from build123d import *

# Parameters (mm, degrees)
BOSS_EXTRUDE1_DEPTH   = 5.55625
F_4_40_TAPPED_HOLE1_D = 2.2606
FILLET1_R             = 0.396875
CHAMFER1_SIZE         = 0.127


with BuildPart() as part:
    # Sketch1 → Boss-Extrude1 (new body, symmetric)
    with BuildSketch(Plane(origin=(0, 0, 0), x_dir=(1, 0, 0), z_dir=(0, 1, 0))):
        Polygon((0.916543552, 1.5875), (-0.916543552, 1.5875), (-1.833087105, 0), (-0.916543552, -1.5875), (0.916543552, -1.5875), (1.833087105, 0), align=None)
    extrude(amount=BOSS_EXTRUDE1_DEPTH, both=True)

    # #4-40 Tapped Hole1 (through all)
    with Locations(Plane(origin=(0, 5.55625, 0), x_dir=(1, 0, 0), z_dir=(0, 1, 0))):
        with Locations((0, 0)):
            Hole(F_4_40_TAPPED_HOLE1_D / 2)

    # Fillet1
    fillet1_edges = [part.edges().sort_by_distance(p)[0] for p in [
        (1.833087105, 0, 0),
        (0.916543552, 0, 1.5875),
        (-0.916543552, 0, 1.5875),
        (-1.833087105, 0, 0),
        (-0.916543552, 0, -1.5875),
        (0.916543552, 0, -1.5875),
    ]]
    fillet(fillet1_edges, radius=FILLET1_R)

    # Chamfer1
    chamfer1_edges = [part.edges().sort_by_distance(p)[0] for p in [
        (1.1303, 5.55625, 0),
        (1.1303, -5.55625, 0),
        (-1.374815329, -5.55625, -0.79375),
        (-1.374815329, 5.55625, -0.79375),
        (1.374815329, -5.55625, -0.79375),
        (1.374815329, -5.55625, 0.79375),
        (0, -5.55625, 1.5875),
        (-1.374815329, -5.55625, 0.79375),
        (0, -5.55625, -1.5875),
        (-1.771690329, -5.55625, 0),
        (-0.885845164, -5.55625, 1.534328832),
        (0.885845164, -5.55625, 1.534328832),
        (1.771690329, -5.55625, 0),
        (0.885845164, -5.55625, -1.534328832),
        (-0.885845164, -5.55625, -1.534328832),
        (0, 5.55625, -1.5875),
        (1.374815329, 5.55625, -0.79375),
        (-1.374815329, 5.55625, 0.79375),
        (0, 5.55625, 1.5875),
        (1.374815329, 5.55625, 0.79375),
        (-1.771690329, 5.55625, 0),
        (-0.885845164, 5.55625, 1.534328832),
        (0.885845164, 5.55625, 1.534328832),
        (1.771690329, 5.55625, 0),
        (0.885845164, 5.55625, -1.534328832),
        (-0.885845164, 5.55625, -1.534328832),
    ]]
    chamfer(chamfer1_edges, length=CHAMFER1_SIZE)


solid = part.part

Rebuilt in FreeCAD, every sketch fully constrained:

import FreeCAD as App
import Part
import Sketcher
from FreeCAD import Vector
Q = App.Units.Quantity


def edges_at(feature, points):
    """Names of the edges that pass closest to the given points."""
    edges = feature.Shape.Edges
    near = lambda p: min(range(len(edges)), key=lambda i: edges[i].distToShape(Part.Vertex(*p))[0])
    return sorted({f"Edge{near(p) + 1}" for p in points})

doc = App.newDocument("Part")
params = doc.addObject("Spreadsheet::Sheet", "Params")
for row, (alias, value) in enumerate([
    ("pad1_length", "0.4375 in"),
    ("sketch2_diameter", "0.089 in"),
    ("hole_diameter", "0.089 in"),
    ("fillet_radius", "0.015625 in"),
    ("chamfer_size", "0.005 in"),
], start=1):
    params.set(f"A{row}", alias)
    params.set(f"B{row}", "=" + value)
    params.setAlias(f"B{row}", alias)

body = doc.addObject("PartDesign::Body", "Body")

# Sketch on XZ plane
sketch1 = body.newObject("Sketcher::SketchObject", "Sketch")
sketch1.AttachmentSupport = (doc.getObject("XZ_Plane"), [""])
sketch1.MapMode = "FlatFace"
sketch1.addGeometry([
    Part.LineSegment(Vector(0.9, -1.6, 0), Vector(-0.9, -1.6, 0)),  # 0
    Part.LineSegment(Vector(-0.9, -1.6, 0), Vector(-1.8, 0, 0)),  # 1
    Part.LineSegment(Vector(-1.8, 0, 0), Vector(-0.9, 1.6, 0)),  # 2
    Part.LineSegment(Vector(-0.9, 1.6, 0), Vector(0.9, 1.6, 0)),  # 3
    Part.LineSegment(Vector(0.9, 1.6, 0), Vector(1.8, 0, 0)),  # 4
    Part.LineSegment(Vector(1.8, 0, 0), Vector(0.9, -1.6, 0)),  # 5
], False)
sketch1.addConstraint([
    Sketcher.Constraint("Coincident", 0, 2, 1, 1),
    Sketcher.Constraint("Coincident", 1, 2, 2, 1),
    Sketcher.Constraint("Coincident", 2, 2, 3, 1),
    Sketcher.Constraint("Coincident", 3, 2, 4, 1),
    Sketcher.Constraint("Coincident", 4, 2, 5, 1),
    Sketcher.Constraint("Coincident", 5, 2, 0, 1),
    Sketcher.Constraint("Horizontal", 0),
    Sketcher.Constraint("Horizontal", 3),
    Sketcher.Constraint("Symmetric", 0, 2, 3, 2, -1, 1),
    Sketcher.Constraint("Symmetric", 1, 2, 4, 2, -1, 1),
    Sketcher.Constraint("PointOnObject", 1, 2, -1),
    Sketcher.Constraint("Parallel", 2, 5),
    Sketcher.Constraint("Vertical", 0, 2, 2, 2),
    Sketcher.Constraint("Angle", 1, Q("120 deg")),
    Sketcher.Constraint("DistanceY", 0, 2, -1, 1, Q("0.0625 in")),
    Sketcher.Constraint("DistanceX", 0, 2, 0, 1, 1.833087),
])
pad1 = body.newObject("PartDesign::Pad", "Pad")
pad1.Profile = sketch1
pad1.setExpression("Length", "Params.pad1_length")
pad1.Midplane = True

# Sketch on XZ plane
sketch2 = body.newObject("Sketcher::SketchObject", "Sketch001")
sketch2.AttachmentSupport = (doc.getObject("XZ_Plane"), [""])
sketch2.MapMode = "FlatFace"
sketch2.AttachmentOffset = App.Placement(Vector(0, 0, -0.21875 * 25.4), App.Rotation())
sketch2.addGeometry(Part.Circle(Vector(0, 0, 0), Vector(0, 0, 1), 1.1), False)
sketch2.addConstraint([
    Sketcher.Constraint("Coincident", 0, 3, -1, 1),
    Sketcher.Constraint("Diameter", 0, Q("0.089 in")),
])
sketch2.setExpression("Constraints[1]", "Params.sketch2_diameter")
doc.recompute()
hole = body.newObject("PartDesign::Hole", "Hole")
hole.Profile = sketch2
hole.ThreadType = "None"
hole.setExpression("Diameter", "Params.hole_diameter")
hole.DepthType = "ThroughAll"
hole.Reversed = True
doc.recompute()

fillet = body.newObject("PartDesign::Fillet", "Fillet")
fillet.Base = (hole, edges_at(hole, [
    (1.833, 0, 0),
    (0.917, 0, 1.587),
    (-0.917, 0, 1.587),
    (-1.833, 0, 0),
    (-0.917, 0, -1.587),
    (0.917, 0, -1.587),
]))
fillet.setExpression("Radius", "Params.fillet_radius")
doc.recompute()

chamfer = body.newObject("PartDesign::Chamfer", "Chamfer")
chamfer.Base = (fillet, edges_at(fillet, [
    (1.13, 5.556, 0),
    (1.13, -5.556, 0),
    (-1.375, -5.556, -0.794),
    (-1.375, 5.556, -0.794),
    (1.375, -5.556, -0.794),
    (1.375, -5.556, 0.794),
    (0, -5.556, 1.587),
    (-1.375, -5.556, 0.794),
    (0, -5.556, -1.587),
    (-1.772, -5.556, 0),
    (-0.886, -5.556, 1.534),
    (0.886, -5.556, 1.534),
    (1.772, -5.556, 0),
    (0.886, -5.556, -1.534),
    (-0.886, -5.556, -1.534),
    (0, 5.556, -1.587),
    (1.375, 5.556, -0.794),
    (-1.375, 5.556, 0.794),
    (0, 5.556, 1.587),
    (1.375, 5.556, 0.794),
    (-1.772, 5.556, 0),
    (-0.886, 5.556, 1.534),
    (0.886, 5.556, 1.534),
    (1.772, 5.556, 0),
    (0.886, 5.556, -1.534),
    (-0.886, 5.556, -1.534),
]))
chamfer.setExpression("Size", "Params.chamfer_size")

doc.recompute()
